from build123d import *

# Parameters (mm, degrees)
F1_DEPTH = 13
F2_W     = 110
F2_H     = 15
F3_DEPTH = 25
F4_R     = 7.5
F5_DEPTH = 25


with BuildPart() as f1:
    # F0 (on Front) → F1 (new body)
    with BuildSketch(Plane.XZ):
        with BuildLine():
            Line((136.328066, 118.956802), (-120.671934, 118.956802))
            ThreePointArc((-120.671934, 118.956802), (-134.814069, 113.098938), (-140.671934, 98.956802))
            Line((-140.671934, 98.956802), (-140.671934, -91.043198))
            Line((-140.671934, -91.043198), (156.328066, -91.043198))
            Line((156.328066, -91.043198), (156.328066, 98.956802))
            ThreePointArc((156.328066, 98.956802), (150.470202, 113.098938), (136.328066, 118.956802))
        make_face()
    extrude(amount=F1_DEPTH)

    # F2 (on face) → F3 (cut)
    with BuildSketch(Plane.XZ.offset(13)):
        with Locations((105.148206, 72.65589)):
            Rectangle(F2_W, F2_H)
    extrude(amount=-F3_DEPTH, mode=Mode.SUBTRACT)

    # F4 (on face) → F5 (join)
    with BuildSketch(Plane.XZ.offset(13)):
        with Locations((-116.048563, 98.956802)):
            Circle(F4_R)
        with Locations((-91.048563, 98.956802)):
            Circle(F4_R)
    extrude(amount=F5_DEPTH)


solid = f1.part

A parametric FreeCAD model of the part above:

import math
import FreeCAD as App
import Part
import Sketcher

V = App.Vector
Q = App.Units.Quantity

doc = App.newDocument("Part")
body = doc.addObject("PartDesign::Body", "Body")

# Sketch on XZ plane
sketch1 = body.newObject("Sketcher::SketchObject", "Sketch")
sketch1.AttachmentSupport = (doc.getObject("XZ_Plane"), [""])
sketch1.MapMode = "FlatFace"
sketch1.addGeometry([
    Part.LineSegment(V(136, 119, 0), V(-121, 119, 0)),  # 0
    Part.ArcOfCircle(Part.Circle(V(-121, 99, 0), V(0, 0, 1), 20), math.radians(90), math.radians(180)),  # 1
    Part.LineSegment(V(-141, 99, 0), V(-141, -91, 0)),  # 2
    Part.LineSegment(V(-141, -91, 0), V(156, -91, 0)),  # 3
    Part.LineSegment(V(156, -91, 0), V(156, 99, 0)),  # 4
    Part.ArcOfCircle(Part.Circle(V(136, 99, 0), V(0, 0, 1), 20), math.radians(0), math.radians(90)),  # 5
], False)
sketch1.addConstraint([
    Sketcher.Constraint("Tangent", 0, 2, 1, 1),
    Sketcher.Constraint("Tangent", 1, 2, 2, 1),
    Sketcher.Constraint("Coincident", 2, 2, 3, 1),
    Sketcher.Constraint("Coincident", 3, 2, 4, 1),
    Sketcher.Constraint("Tangent", 4, 2, 5, 1),
    Sketcher.Constraint("Tangent", 5, 2, 0, 1),
    Sketcher.Constraint("Horizontal", 0),
    Sketcher.Constraint("Vertical", 2),
    Sketcher.Constraint("Horizontal", 3),
    Sketcher.Constraint("Vertical", 4),
    Sketcher.Constraint("Equal", 1, 5),
    Sketcher.Constraint("Radius", 1, Q("20 mm")),
    Sketcher.Constraint("DistanceX", 0, 2, 0, 1, Q("257 mm")),
    Sketcher.Constraint("DistanceY", 2, 2, 2, 1, Q("190 mm")),
    Sketcher.Constraint("DistanceY", -1, 1, 1, 3, Q("98.956802 mm")),
    Sketcher.Constraint("DistanceX", 1, 3, -1, 1, Q("120.671934 mm")),
])
pad1 = body.newObject("PartDesign::Pad", "Pad")
pad1.Profile = sketch1
pad1.Length = 13

# Sketch on XZ plane
sketch2 = body.newObject("Sketcher::SketchObject", "Sketch001")
sketch2.AttachmentSupport = (doc.getObject("XZ_Plane"), [""])
sketch2.MapMode = "FlatFace"
sketch2.AttachmentOffset = App.Placement(V(0, 0, 13), App.Rotation())
sketch2.addGeometry([
    Part.LineSegment(V(50, 80, 0), V(50, 65, 0)),
    Part.LineSegment(V(50, 65, 0), V(160, 65, 0)),
    Part.LineSegment(V(160, 65, 0), V(160, 80, 0)),
    Part.LineSegment(V(160, 80, 0), V(50, 80, 0)),
], False)
sketch2.addConstraint([
    Sketcher.Constraint("Coincident", 0, 2, 1, 1),
    Sketcher.Constraint("Coincident", 1, 2, 2, 1),
    Sketcher.Constraint("Coincident", 2, 2, 3, 1),
    Sketcher.Constraint("Coincident", 3, 2, 0, 1),
    Sketcher.Constraint("Vertical", 0),
    Sketcher.Constraint("Horizontal", 1),
    Sketcher.Constraint("Vertical", 2),
    Sketcher.Constraint("Horizontal", 3),
    Sketcher.Constraint("DistanceX", 1, 1, 1, 2, Q("110 mm")),
    Sketcher.Constraint("DistanceY", 0, 2, 0, 1, Q("15 mm")),
    Sketcher.Constraint("DistanceY", -1, 1, 0, 2, Q("65.15589 mm")),
    Sketcher.Constraint("DistanceX", -1, 1, 0, 2, Q("50.148206 mm")),
])
pocket1 = body.newObject("PartDesign::Pocket", "Pocket")
pocket1.Profile = sketch2
pocket1.Length = 25

# Sketch on XZ plane
sketch3 = body.newObject("Sketcher::SketchObject", "Sketch002")
sketch3.AttachmentSupport = (doc.getObject("XZ_Plane"), [""])
sketch3.MapMode = "FlatFace"
sketch3.AttachmentOffset = App.Placement(V(0, 0, 13), App.Rotation())
sketch3.addGeometry([
    Part.Circle(V(-116, 99, 0), V(0, 0, 1), 8),
    Part.Circle(V(-91, 99, 0), V(0, 0, 1), 8),
], False)
sketch3.addConstraint([
    Sketcher.Constraint("Equal", 0, 1),
    Sketcher.Constraint("Horizontal", 0, 3, 1, 3),
    Sketcher.Constraint("Diameter", 0, Q("15 mm")),
    Sketcher.Constraint("DistanceX", 0, 3, 1, 3, Q("25 mm")),
    Sketcher.Constraint("DistanceY", -1, 1, 0, 3, Q("98.956802 mm")),
    Sketcher.Constraint("DistanceX", 0, 3, -1, 1, Q("116.048563 mm")),
])
pad2 = body.newObject("PartDesign::Pad", "Pad001")
pad2.Profile = sketch3
pad2.Length = 25

doc.recompute()
